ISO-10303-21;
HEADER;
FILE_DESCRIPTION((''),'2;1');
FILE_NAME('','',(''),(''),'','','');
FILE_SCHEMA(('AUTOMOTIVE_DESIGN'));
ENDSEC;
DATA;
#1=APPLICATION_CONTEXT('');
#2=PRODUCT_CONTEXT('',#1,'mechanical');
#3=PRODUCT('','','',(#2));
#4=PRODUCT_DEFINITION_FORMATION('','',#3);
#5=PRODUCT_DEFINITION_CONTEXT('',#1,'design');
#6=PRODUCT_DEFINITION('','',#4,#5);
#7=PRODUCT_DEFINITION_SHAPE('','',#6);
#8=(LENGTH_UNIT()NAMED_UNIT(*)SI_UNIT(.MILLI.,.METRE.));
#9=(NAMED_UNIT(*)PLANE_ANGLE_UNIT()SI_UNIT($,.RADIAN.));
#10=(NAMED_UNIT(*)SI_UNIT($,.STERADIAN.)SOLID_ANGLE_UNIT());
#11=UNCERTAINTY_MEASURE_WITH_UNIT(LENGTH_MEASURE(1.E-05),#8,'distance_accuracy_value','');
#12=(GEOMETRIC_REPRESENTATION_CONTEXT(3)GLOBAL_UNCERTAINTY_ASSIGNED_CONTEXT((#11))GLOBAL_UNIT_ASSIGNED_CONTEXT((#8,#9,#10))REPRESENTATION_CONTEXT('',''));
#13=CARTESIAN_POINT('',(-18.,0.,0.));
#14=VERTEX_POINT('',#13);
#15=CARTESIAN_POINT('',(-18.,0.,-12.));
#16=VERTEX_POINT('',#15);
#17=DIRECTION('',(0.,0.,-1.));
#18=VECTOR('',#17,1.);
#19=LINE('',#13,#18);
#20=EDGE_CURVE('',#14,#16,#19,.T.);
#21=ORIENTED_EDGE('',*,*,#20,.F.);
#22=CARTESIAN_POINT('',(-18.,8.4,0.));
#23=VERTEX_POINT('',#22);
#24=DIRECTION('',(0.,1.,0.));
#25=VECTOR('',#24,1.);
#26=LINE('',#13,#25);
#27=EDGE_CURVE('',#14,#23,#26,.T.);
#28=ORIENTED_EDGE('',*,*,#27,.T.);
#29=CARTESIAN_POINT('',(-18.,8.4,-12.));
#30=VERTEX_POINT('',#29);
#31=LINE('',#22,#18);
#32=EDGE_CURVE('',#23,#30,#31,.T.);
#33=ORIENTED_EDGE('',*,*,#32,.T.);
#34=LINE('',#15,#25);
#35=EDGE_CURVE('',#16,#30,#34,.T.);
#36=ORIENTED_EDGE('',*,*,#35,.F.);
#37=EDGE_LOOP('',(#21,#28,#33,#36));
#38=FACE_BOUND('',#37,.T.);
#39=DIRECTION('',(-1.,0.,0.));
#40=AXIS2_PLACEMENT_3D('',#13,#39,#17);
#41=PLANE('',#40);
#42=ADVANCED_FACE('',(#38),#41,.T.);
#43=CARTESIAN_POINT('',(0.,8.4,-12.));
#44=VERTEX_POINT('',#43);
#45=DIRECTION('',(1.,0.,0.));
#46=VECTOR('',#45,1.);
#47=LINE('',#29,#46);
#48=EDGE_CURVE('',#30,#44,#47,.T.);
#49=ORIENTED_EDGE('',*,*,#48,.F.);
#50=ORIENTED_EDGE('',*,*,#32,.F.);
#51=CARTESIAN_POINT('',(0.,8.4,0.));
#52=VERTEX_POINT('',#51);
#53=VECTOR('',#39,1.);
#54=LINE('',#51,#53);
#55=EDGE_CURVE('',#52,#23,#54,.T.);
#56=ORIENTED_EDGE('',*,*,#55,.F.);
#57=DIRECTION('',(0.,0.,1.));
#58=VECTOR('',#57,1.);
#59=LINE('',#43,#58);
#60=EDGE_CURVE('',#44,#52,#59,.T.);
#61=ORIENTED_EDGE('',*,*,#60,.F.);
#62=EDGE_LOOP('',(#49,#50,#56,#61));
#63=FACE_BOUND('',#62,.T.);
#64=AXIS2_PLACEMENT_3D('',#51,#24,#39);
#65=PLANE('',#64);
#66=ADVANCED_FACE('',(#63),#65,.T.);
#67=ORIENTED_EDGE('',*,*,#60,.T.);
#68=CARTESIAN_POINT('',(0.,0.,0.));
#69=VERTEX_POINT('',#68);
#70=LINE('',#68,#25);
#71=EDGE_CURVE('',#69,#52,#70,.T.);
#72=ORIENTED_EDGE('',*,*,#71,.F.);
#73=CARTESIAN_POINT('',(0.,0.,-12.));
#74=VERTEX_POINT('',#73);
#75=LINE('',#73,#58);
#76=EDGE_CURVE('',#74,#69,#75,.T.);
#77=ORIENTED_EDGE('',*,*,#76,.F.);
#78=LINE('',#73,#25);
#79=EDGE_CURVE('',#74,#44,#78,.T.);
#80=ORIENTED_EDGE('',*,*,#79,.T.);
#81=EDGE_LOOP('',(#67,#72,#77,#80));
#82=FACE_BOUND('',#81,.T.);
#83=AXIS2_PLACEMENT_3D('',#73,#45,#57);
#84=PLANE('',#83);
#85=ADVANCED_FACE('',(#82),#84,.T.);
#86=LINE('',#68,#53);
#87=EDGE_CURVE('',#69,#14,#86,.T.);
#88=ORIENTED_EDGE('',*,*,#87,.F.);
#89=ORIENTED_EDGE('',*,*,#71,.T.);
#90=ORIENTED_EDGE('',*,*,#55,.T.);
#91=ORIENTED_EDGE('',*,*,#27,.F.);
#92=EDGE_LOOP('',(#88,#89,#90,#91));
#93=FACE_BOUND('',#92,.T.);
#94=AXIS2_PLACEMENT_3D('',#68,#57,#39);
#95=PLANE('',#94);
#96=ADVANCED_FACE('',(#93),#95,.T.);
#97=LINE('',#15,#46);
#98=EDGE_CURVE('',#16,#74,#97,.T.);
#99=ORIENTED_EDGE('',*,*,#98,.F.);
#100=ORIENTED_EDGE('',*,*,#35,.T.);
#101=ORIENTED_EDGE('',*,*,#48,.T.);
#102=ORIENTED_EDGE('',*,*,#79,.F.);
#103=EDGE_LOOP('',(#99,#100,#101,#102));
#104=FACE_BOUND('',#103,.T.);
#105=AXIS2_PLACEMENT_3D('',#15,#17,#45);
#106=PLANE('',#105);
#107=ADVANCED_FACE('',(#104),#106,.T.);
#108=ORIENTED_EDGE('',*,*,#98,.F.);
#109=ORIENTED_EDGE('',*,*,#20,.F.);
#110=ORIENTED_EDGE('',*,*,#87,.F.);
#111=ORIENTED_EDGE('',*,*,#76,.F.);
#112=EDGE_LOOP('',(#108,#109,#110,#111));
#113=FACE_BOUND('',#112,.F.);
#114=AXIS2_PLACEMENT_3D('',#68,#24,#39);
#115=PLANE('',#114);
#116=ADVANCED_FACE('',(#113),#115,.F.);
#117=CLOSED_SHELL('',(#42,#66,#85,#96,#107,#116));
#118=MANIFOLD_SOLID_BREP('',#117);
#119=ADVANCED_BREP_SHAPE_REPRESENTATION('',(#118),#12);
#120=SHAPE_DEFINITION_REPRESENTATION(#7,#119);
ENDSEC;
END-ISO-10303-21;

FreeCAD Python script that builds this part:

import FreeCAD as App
import Part
import Sketcher
from FreeCAD import Vector

doc = App.newDocument("Part")
body = doc.addObject("PartDesign::Body", "Body")

sketch1 = doc.addObject("Sketcher::SketchObject", "Sketch")
body.addObject(sketch1)
sketch1.AttachmentSupport = (doc.XZ_Plane, [""])
sketch1.MapMode = "FlatFace"
sketch1.addGeometry(Part.LineSegment(Vector(-18, 0, 0), Vector(0, 0, 0)), False)
sketch1.addGeometry(Part.LineSegment(Vector(0, 0, 0), Vector(0, -12, 0)), False)
sketch1.addGeometry(Part.LineSegment(Vector(0, -12, 0), Vector(-18, -12, 0)), False)
sketch1.addGeometry(Part.LineSegment(Vector(-18, -12, 0), Vector(-18, 0, 0)), False)
sketch1.addConstraint(Sketcher.Constraint("Coincident", 0, 2, 1, 1))
sketch1.addConstraint(Sketcher.Constraint("Coincident", 1, 2, 2, 1))
sketch1.addConstraint(Sketcher.Constraint("Coincident", 2, 2, 3, 1))
sketch1.addConstraint(Sketcher.Constraint("Coincident", 3, 2, 0, 1))
sketch1.addConstraint(Sketcher.Constraint("Horizontal", 0))
sketch1.addConstraint(Sketcher.Constraint("Vertical", 1))
sketch1.addConstraint(Sketcher.Constraint("Horizontal", 2))
sketch1.addConstraint(Sketcher.Constraint("Vertical", 3))
sketch1.addConstraint(Sketcher.Constraint("Coincident", 0, 2, -1, 1))
sketch1.addConstraint(Sketcher.Constraint("DistanceX", 0, 1, 0, 2, 18.0))
sketch1.addConstraint(Sketcher.Constraint("DistanceY", 1, 2, 1, 1, 12.0))
pad1 = doc.addObject("PartDesign::Pad", "Pad")
body.addObject(pad1)
pad1.Profile = sketch1
pad1.Length = 8.4
pad1.Reversed = True

doc.recompute()
